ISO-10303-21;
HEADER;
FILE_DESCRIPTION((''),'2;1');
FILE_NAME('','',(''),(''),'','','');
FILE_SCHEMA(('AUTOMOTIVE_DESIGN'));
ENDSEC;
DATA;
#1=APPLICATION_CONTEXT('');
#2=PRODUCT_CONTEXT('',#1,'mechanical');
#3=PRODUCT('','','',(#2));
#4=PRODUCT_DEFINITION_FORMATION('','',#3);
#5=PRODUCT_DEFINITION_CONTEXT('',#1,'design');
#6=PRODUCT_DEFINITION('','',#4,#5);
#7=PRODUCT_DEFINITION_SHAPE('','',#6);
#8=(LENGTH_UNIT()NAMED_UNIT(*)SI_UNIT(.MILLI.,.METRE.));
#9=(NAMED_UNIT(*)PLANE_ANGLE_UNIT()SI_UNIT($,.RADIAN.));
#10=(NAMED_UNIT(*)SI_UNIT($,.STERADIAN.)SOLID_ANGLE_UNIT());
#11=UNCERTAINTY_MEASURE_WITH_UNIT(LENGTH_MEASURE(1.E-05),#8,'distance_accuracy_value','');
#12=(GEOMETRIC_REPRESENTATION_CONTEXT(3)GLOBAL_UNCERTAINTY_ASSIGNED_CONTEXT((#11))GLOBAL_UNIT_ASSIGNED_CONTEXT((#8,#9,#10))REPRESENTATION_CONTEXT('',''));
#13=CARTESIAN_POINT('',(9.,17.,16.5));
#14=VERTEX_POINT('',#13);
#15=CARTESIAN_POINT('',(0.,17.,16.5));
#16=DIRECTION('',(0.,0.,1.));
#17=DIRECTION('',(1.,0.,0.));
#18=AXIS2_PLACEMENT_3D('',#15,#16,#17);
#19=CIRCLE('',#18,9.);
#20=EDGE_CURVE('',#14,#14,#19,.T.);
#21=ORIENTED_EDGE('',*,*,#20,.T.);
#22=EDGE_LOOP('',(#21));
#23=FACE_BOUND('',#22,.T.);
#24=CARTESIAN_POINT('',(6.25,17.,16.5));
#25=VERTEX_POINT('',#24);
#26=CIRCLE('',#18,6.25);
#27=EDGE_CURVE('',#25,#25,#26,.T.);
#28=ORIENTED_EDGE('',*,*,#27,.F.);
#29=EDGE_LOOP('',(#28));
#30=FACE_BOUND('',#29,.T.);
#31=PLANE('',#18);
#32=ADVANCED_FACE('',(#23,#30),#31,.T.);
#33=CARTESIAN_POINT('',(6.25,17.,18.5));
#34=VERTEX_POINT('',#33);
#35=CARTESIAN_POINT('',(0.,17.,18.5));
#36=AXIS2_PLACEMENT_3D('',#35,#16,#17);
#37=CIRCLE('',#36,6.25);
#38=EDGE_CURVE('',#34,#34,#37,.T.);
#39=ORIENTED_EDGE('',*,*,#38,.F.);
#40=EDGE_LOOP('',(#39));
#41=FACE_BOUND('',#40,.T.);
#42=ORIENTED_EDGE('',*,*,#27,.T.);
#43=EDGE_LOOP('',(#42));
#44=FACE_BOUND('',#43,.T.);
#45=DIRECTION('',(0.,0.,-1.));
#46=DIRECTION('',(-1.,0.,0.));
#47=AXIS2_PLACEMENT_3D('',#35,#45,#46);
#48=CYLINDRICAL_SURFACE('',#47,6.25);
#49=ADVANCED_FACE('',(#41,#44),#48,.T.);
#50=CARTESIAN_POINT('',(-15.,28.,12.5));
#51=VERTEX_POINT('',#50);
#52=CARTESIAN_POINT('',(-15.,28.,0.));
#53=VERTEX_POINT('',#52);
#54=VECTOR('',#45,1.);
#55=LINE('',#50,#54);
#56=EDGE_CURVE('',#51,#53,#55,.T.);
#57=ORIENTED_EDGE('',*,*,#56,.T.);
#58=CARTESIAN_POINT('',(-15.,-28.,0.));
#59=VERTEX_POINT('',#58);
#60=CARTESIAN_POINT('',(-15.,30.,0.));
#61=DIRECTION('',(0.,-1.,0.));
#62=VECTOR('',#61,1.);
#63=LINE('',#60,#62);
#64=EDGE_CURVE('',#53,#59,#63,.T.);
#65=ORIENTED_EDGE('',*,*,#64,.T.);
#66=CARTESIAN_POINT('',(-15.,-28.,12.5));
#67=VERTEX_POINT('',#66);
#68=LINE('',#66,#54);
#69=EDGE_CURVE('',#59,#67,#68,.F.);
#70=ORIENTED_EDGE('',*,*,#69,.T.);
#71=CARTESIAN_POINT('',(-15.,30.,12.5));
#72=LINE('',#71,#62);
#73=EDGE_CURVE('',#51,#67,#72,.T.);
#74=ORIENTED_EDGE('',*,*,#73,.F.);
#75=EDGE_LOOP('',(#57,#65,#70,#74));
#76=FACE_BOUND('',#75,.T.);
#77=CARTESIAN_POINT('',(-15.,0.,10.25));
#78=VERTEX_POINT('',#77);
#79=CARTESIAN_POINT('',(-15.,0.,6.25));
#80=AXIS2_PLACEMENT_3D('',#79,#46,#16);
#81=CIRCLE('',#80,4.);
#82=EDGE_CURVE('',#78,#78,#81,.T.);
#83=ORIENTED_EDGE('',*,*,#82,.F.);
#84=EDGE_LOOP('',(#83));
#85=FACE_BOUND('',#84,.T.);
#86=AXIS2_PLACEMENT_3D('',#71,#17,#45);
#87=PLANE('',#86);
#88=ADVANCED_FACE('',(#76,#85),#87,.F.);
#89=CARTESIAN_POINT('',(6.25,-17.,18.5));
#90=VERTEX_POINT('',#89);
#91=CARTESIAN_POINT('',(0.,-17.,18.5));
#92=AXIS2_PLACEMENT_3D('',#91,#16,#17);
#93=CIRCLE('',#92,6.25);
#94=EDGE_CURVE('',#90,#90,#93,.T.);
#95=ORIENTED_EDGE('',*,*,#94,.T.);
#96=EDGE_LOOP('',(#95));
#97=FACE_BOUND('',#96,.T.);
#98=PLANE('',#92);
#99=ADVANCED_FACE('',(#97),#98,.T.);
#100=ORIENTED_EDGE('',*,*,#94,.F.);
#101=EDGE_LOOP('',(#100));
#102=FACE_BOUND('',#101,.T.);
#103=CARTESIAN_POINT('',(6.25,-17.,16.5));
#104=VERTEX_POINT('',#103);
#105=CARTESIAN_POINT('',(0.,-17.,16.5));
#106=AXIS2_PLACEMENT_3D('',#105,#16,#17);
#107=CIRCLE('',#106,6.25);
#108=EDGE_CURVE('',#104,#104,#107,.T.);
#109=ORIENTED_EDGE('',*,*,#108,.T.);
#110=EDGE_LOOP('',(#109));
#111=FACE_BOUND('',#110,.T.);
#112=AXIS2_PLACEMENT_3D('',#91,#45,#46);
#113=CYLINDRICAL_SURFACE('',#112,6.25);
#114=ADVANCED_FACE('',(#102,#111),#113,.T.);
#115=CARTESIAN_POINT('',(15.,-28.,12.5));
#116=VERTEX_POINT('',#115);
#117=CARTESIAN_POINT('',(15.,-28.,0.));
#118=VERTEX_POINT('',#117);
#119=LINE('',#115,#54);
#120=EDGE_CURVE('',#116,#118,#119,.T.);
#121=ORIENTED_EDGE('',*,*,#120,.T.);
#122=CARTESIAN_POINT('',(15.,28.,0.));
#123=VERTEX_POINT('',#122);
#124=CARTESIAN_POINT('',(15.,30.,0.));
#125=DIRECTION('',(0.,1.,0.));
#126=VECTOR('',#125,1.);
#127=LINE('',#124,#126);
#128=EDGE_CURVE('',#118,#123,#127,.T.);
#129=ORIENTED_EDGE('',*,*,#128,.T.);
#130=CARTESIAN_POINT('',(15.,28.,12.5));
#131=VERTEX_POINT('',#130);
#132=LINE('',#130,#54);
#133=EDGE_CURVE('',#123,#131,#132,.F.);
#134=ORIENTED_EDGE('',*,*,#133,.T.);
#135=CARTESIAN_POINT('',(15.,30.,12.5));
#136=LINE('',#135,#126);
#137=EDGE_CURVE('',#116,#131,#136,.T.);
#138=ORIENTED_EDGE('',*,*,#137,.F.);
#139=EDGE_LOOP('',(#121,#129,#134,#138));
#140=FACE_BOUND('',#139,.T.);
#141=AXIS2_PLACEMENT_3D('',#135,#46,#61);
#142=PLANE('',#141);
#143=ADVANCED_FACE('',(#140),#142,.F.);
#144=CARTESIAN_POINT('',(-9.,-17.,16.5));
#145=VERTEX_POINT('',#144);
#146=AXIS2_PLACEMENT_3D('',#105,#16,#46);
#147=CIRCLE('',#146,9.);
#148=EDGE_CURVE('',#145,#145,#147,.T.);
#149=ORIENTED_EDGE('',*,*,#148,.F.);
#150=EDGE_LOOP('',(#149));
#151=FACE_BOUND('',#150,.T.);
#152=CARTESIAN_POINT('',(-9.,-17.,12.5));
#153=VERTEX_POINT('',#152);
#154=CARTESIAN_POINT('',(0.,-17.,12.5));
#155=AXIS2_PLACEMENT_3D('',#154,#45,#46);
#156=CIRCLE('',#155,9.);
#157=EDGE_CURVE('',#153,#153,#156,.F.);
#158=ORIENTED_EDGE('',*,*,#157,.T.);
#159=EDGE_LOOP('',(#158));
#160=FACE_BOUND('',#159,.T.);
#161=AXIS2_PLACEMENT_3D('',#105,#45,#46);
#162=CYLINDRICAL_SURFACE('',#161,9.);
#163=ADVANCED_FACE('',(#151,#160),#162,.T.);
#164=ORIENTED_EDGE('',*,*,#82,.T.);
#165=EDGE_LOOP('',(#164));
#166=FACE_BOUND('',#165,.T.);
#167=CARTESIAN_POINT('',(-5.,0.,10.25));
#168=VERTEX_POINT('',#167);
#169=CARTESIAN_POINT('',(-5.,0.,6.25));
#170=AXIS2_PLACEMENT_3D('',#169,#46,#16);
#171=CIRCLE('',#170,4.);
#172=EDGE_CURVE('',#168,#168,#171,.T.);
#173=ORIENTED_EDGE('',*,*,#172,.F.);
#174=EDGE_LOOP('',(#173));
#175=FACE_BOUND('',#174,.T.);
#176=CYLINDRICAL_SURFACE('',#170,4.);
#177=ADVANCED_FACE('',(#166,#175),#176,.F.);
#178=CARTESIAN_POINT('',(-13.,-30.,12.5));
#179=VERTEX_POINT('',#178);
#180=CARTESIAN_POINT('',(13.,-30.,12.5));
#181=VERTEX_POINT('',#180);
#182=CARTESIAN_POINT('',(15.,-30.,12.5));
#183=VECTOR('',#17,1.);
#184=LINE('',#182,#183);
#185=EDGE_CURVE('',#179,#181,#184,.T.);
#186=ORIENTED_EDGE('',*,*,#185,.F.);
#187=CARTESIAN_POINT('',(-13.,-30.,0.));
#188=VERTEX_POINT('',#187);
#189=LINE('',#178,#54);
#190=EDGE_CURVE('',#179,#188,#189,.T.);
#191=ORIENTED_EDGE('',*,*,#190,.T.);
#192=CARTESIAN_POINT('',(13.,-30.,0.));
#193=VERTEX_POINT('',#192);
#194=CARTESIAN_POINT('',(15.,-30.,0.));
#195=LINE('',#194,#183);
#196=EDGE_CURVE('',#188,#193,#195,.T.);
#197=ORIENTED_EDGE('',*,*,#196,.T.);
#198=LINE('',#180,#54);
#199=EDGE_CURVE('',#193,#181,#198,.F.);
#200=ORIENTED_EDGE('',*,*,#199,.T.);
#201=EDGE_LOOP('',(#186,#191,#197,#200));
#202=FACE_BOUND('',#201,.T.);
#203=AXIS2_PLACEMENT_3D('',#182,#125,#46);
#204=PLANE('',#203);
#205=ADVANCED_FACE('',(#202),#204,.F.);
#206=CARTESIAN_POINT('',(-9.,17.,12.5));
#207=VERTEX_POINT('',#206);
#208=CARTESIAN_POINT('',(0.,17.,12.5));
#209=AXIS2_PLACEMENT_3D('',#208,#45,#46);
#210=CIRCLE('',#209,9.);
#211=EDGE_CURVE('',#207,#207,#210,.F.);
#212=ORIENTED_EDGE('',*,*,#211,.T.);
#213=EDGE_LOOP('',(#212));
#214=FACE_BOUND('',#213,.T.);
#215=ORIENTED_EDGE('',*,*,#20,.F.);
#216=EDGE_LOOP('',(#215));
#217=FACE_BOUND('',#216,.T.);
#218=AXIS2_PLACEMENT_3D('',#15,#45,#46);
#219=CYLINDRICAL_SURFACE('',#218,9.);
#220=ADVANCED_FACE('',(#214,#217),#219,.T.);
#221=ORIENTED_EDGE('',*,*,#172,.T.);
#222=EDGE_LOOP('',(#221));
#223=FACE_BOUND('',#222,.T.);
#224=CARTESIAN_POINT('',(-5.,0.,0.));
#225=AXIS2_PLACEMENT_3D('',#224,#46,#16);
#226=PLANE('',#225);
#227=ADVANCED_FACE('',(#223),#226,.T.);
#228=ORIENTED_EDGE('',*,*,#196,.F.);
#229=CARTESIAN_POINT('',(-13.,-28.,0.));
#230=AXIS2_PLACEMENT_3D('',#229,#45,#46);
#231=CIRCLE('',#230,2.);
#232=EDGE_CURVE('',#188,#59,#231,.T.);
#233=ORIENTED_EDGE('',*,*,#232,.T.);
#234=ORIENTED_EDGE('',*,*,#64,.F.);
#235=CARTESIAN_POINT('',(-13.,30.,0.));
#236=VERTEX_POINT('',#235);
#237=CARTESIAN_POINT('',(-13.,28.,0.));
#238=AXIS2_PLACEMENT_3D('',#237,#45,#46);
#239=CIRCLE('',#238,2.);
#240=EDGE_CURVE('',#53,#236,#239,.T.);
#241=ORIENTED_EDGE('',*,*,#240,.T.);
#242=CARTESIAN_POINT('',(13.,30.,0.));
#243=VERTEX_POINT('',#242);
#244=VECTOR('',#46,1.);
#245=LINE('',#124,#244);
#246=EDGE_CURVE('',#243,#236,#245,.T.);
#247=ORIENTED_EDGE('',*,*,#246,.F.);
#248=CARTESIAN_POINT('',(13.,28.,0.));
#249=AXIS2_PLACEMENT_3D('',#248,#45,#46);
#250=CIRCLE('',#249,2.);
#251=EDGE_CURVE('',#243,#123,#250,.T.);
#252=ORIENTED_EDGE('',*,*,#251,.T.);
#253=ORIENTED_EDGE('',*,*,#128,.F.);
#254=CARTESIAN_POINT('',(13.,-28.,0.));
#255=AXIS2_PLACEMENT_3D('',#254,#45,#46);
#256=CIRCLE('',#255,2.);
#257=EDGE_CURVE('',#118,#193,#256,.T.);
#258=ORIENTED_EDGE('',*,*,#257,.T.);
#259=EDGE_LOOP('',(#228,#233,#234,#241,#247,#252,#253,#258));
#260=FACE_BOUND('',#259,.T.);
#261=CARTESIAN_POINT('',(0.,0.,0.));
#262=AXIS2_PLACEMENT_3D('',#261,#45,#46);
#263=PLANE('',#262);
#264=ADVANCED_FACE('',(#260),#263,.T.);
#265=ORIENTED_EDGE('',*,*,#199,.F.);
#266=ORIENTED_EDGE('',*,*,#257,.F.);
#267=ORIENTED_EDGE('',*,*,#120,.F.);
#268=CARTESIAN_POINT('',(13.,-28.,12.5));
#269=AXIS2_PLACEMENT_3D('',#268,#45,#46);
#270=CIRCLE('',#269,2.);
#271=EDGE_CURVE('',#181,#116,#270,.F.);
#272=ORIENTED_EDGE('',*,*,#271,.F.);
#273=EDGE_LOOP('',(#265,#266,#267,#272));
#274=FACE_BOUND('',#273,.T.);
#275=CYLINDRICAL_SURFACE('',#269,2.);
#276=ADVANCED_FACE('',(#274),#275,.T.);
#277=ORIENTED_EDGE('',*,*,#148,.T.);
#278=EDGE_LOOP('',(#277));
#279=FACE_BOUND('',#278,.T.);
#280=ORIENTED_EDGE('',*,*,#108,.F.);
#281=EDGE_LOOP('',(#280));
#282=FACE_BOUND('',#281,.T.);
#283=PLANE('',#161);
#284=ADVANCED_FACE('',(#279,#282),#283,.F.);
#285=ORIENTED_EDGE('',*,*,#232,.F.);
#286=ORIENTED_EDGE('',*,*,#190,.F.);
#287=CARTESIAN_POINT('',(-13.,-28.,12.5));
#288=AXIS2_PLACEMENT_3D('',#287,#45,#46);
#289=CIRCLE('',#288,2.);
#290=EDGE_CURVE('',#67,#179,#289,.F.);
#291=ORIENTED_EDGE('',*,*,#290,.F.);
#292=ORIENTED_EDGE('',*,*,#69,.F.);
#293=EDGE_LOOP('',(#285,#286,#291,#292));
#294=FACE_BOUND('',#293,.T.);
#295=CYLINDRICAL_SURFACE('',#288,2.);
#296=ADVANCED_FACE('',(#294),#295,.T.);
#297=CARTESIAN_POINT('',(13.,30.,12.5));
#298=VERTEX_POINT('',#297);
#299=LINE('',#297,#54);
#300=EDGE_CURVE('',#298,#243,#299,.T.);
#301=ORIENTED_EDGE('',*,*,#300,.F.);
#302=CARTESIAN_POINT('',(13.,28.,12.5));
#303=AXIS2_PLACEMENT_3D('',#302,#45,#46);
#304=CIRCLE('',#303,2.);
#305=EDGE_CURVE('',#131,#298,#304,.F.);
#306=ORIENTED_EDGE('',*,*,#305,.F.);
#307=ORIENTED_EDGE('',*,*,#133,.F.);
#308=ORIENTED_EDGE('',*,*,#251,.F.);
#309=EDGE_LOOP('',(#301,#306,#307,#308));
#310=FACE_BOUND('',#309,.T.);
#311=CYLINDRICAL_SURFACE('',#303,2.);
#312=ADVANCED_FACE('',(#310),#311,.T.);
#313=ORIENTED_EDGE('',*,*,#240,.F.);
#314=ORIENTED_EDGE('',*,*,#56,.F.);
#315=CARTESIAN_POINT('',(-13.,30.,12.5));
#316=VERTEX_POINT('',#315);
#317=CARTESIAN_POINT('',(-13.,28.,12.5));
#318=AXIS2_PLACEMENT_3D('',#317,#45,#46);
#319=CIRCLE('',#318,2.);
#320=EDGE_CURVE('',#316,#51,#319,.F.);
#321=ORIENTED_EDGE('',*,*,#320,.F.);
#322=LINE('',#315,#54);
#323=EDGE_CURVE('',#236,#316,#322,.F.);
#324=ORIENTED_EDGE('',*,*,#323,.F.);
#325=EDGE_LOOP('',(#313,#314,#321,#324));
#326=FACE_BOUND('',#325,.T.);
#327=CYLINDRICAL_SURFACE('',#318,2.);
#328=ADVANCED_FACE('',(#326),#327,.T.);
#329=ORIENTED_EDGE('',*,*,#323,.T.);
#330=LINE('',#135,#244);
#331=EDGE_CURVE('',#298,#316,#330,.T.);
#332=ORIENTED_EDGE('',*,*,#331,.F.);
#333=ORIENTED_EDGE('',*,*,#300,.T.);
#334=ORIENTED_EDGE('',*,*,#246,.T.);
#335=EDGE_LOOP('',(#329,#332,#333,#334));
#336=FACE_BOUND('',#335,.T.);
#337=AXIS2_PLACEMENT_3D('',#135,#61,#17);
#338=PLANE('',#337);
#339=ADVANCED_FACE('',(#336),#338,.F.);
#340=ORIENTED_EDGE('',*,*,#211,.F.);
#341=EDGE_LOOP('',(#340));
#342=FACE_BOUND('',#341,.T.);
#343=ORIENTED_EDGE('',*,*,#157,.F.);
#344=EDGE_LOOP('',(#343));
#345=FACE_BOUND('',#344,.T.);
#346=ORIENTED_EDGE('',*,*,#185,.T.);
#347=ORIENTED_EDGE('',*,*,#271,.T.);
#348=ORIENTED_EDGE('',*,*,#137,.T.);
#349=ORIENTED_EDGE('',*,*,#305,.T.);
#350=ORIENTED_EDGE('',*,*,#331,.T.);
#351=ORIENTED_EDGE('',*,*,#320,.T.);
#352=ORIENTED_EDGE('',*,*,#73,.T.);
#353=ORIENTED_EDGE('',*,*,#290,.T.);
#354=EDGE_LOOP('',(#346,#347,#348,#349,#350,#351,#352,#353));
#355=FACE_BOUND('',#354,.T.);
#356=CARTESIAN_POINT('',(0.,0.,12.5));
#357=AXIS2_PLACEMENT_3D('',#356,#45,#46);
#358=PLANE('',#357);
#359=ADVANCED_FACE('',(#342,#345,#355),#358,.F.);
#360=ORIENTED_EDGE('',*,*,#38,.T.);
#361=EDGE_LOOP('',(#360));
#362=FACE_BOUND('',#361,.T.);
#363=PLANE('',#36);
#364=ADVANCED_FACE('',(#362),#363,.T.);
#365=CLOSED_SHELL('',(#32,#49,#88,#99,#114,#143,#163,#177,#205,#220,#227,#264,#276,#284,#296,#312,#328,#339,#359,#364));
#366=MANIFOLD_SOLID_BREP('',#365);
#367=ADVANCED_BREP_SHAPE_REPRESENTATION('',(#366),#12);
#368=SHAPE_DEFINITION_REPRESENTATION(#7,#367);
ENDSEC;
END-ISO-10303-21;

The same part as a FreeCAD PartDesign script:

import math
import FreeCAD as App
import Part
import Sketcher
from FreeCAD import Vector


def edges_at(feature, points):
    """Names of the edges that pass closest to the given points."""
    edges = feature.Shape.Edges
    near = lambda p: min(range(len(edges)), key=lambda i: edges[i].distToShape(Part.Vertex(*p))[0])
    return sorted({f"Edge{near(p) + 1}" for p in points})

doc = App.newDocument("Part")
body = doc.addObject("PartDesign::Body", "Body")

sketch1 = body.newObject("Sketcher::SketchObject", "Sketch")
sketch1.AttachmentSupport = (doc.getObject("XY_Plane"), [""])
sketch1.MapMode = "FlatFace"
sketch1.addGeometry(Part.LineSegment(Vector(-15, 30, 0), Vector(-15, -30, 0)), False)
sketch1.addGeometry(Part.LineSegment(Vector(-15, -30, 0), Vector(15, -30, 0)), False)
sketch1.addGeometry(Part.LineSegment(Vector(15, -30, 0), Vector(15, 30, 0)), False)
sketch1.addGeometry(Part.LineSegment(Vector(15, 30, 0), Vector(-15, 30, 0)), False)
sketch1.addConstraint(Sketcher.Constraint("Coincident", 0, 2, 1, 1))
sketch1.addConstraint(Sketcher.Constraint("Coincident", 1, 2, 2, 1))
sketch1.addConstraint(Sketcher.Constraint("Coincident", 2, 2, 3, 1))
sketch1.addConstraint(Sketcher.Constraint("Coincident", 3, 2, 0, 1))
sketch1.addConstraint(Sketcher.Constraint("Vertical", 0))
sketch1.addConstraint(Sketcher.Constraint("Horizontal", 1))
sketch1.addConstraint(Sketcher.Constraint("Vertical", 2))
sketch1.addConstraint(Sketcher.Constraint("Horizontal", 3))
sketch1.addConstraint(Sketcher.Constraint("Symmetric", 0, 2, 2, 2, -1, 1))
sketch1.addConstraint(Sketcher.Constraint("DistanceX", 1, 1, 1, 2, 30.0))
sketch1.addConstraint(Sketcher.Constraint("DistanceY", 0, 2, 0, 1, 60.0))
pad1 = body.newObject("PartDesign::Pad", "Pad")
pad1.Profile = sketch1
pad1.Length = 12.5

sketch2 = body.newObject("Sketcher::SketchObject", "Sketch001")
sketch2.AttachmentSupport = (doc.getObject("XY_Plane"), [""])
sketch2.MapMode = "FlatFace"
sketch2.AttachmentOffset = App.Placement(Vector(0, 0, 12.5), App.Rotation())
sketch2.addGeometry(Part.Circle(Vector(0, 17, 0), Vector(0, 0, 1), 9), False)
sketch2.addGeometry(Part.Circle(Vector(0, -17, 0), Vector(0, 0, 1), 9), False)
sketch2.addConstraint(Sketcher.Constraint("Equal", 0, 1))
sketch2.addConstraint(Sketcher.Constraint("Symmetric", 0, 3, 1, 3, -1, 1))
sketch2.addConstraint(Sketcher.Constraint("PointOnObject", 0, 3, -2))
sketch2.addConstraint(Sketcher.Constraint("Diameter", 0, 18.0))
sketch2.addConstraint(Sketcher.Constraint("DistanceY", -1, 1, 0, 3, 17.0))
pad2 = body.newObject("PartDesign::Pad", "Pad001")
pad2.Profile = sketch2
pad2.Length = 4

sketch3 = body.newObject("Sketcher::SketchObject", "Sketch002")
sketch3.AttachmentSupport = (doc.getObject("XY_Plane"), [""])
sketch3.MapMode = "FlatFace"
sketch3.AttachmentOffset = App.Placement(Vector(0, 0, 16.5), App.Rotation())
sketch3.addGeometry(Part.Circle(Vector(0, 17, 0), Vector(0, 0, 1), 6.25), False)
sketch3.addGeometry(Part.Circle(Vector(0, -17, 0), Vector(0, 0, 1), 6.25), False)
sketch3.addConstraint(Sketcher.Constraint("Equal", 0, 1))
sketch3.addConstraint(Sketcher.Constraint("Symmetric", 0, 3, 1, 3, -1, 1))
sketch3.addConstraint(Sketcher.Constraint("PointOnObject", 0, 3, -2))
sketch3.addConstraint(Sketcher.Constraint("Diameter", 0, 12.5))
sketch3.addConstraint(Sketcher.Constraint("DistanceY", -1, 1, 0, 3, 17.0))
pad3 = body.newObject("PartDesign::Pad", "Pad002")
pad3.Profile = sketch3
pad3.Length = 2
doc.recompute()

fillet = body.newObject("PartDesign::Fillet", "Fillet")
fillet.Base = (pad3, edges_at(pad3, [
    (15, -30, 6.25),
    (-15, -30, 6.25),
    (-15, 30, 6.25),
    (15, 30, 6.25),
]))
fillet.Radius = 2

sketch4 = body.newObject("Sketcher::SketchObject", "Sketch003")
sketch4.AttachmentSupport = (doc.getObject("YZ_Plane"), [""])
sketch4.MapMode = "FlatFace"
sketch4.AttachmentOffset = App.Placement(Vector(0, 0, -15), App.Rotation())
sketch4.addGeometry(Part.ArcOfCircle(Part.Circle(Vector(0, 6.25, 0), Vector(0, 0, 1), 4), math.radians(-90), math.radians(-12.582962)), False)
sketch4.addGeometry(Part.ArcOfCircle(Part.Circle(Vector(0, 6.25, 0), Vector(0, 0, 1), 4), math.radians(167.417038), math.radians(270)), False)
sketch4.addGeometry(Part.ArcOfCircle(Part.Circle(Vector(0, 6.25, 0), Vector(0, 0, 1), 4), math.radians(90), math.radians(167.417038)), False)
sketch4.addGeometry(Part.ArcOfCircle(Part.Circle(Vector(0, 6.25, 0), Vector(0, 0, 1), 4), math.radians(-12.582962), math.radians(90)), False)
sketch4.addConstraint(Sketcher.Constraint("Tangent", 0, 1, 1, 2))
sketch4.addConstraint(Sketcher.Constraint("Tangent", 1, 1, 2, 2))
sketch4.addConstraint(Sketcher.Constraint("Tangent", 2, 1, 3, 2))
sketch4.addConstraint(Sketcher.Constraint("Tangent", 3, 1, 0, 2))
sketch4.addConstraint(Sketcher.Constraint("Equal", 0, 1))
sketch4.addConstraint(Sketcher.Constraint("PointOnObject", 0, 3, -2))
sketch4.addConstraint(Sketcher.Constraint("PointOnObject", 0, 1, -2))
sketch4.addConstraint(Sketcher.Constraint("PointOnObject", 2, 1, -2))
sketch4.addConstraint(Sketcher.Constraint("Radius", 0, 4.0))
sketch4.addConstraint(Sketcher.Constraint("DistanceY", -1, 1, 0, 3, 6.25))
sketch4.addConstraint(Sketcher.Constraint("DistanceX", 1, 1, -1, 1, 3.903926))
sketch4.addConstraint(Sketcher.Constraint("DistanceX", -1, 1, 3, 1, 3.903926))
pocket1 = body.newObject("PartDesign::Pocket", "Pocket")
pocket1.Profile = sketch4
pocket1.Length = 10
pocket1.Reversed = True

doc.recompute()
